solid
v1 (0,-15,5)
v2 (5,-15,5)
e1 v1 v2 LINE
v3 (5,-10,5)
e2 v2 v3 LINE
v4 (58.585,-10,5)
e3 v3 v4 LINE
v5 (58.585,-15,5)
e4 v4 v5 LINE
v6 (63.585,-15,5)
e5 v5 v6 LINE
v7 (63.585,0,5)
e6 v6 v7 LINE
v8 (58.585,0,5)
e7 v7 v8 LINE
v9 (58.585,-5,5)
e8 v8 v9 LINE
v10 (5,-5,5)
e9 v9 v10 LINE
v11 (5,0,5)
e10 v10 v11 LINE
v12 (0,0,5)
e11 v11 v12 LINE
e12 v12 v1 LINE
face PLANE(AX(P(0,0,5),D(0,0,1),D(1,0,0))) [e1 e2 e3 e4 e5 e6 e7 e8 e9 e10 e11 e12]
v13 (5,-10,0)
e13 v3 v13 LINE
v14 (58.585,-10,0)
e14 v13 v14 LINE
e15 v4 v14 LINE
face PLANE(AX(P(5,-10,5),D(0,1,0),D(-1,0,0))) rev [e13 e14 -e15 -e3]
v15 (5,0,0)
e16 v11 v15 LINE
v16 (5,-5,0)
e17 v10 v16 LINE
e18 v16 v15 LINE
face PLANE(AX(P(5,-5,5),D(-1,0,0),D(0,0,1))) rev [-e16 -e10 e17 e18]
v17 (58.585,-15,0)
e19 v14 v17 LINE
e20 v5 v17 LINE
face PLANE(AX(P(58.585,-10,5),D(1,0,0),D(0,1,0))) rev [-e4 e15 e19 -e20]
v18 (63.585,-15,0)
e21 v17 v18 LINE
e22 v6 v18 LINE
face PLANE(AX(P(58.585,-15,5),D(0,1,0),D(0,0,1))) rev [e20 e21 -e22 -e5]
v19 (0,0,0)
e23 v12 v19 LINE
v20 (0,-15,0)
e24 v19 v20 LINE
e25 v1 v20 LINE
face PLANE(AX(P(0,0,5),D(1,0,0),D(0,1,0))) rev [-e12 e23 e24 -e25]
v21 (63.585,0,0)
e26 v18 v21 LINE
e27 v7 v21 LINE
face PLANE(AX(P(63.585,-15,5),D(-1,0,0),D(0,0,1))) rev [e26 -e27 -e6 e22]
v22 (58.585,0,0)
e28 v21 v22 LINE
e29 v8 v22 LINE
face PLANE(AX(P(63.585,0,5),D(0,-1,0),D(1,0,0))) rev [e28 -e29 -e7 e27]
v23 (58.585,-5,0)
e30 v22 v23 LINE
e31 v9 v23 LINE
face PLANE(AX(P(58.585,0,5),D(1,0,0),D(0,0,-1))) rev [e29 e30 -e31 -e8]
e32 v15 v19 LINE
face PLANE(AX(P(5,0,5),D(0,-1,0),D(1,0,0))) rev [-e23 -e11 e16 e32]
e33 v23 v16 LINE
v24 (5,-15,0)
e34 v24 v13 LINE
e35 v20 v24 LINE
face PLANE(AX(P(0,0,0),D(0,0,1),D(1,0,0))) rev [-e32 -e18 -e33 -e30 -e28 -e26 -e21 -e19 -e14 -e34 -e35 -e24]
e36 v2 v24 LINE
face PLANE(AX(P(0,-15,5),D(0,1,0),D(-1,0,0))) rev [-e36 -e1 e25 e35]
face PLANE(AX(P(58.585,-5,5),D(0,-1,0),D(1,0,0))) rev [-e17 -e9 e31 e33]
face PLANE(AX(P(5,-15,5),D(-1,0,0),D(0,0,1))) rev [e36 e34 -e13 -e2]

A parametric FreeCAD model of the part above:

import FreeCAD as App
import Part
import Sketcher
from FreeCAD import Vector

doc = App.newDocument("Part")
body = doc.addObject("PartDesign::Body", "Body")

# Sketch on XY plane
sketch1 = body.newObject("Sketcher::SketchObject", "Sketch")
sketch1.AttachmentSupport = (doc.getObject("XY_Plane"), [""])
sketch1.MapMode = "FlatFace"
sketch1.addGeometry([
    Part.LineSegment(Vector(0, 0, 0), Vector(0, -15, 0)),  # 0
    Part.LineSegment(Vector(0, -15, 0), Vector(5, -15, 0)),  # 1
    Part.LineSegment(Vector(5, -15, 0), Vector(5, -10, 0)),  # 2
    Part.LineSegment(Vector(5, -10, 0), Vector(58.585, -10, 0)),  # 3
    Part.LineSegment(Vector(58.585, -10, 0), Vector(58.585, -15, 0)),  # 4
    Part.LineSegment(Vector(58.585, -15, 0), Vector(63.585, -15, 0)),  # 5
    Part.LineSegment(Vector(63.585, -15, 0), Vector(63.585, 0, 0)),  # 6
    Part.LineSegment(Vector(63.585, 0, 0), Vector(58.585, 0, 0)),  # 7
    Part.LineSegment(Vector(58.585, 0, 0), Vector(58.585, -5, 0)),  # 8
    Part.LineSegment(Vector(58.585, -5, 0), Vector(5, -5, 0)),  # 9
    Part.LineSegment(Vector(5, -5, 0), Vector(5, 0, 0)),  # 10
    Part.LineSegment(Vector(5, 0, 0), Vector(0, 0, 0)),  # 11
], False)
sketch1.addConstraint([
    Sketcher.Constraint("Coincident", 0, 2, 1, 1),
    Sketcher.Constraint("Coincident", 1, 2, 2, 1),
    Sketcher.Constraint("Coincident", 2, 2, 3, 1),
    Sketcher.Constraint("Coincident", 3, 2, 4, 1),
    Sketcher.Constraint("Coincident", 4, 2, 5, 1),
    Sketcher.Constraint("Coincident", 5, 2, 6, 1),
    Sketcher.Constraint("Coincident", 6, 2, 7, 1),
    Sketcher.Constraint("Coincident", 7, 2, 8, 1),
    Sketcher.Constraint("Coincident", 8, 2, 9, 1),
    Sketcher.Constraint("Coincident", 9, 2, 10, 1),
    Sketcher.Constraint("Coincident", 10, 2, 11, 1),
    Sketcher.Constraint("Coincident", 11, 2, 0, 1),
    Sketcher.Constraint("Vertical", 0),
    Sketcher.Constraint("Horizontal", 1),
    Sketcher.Constraint("Vertical", 2),
    Sketcher.Constraint("Horizontal", 3),
    Sketcher.Constraint("Vertical", 4),
    Sketcher.Constraint("Horizontal", 5),
    Sketcher.Constraint("Vertical", 6),
    Sketcher.Constraint("Horizontal", 7),
    Sketcher.Constraint("Vertical", 8),
    Sketcher.Constraint("Horizontal", 9),
    Sketcher.Constraint("Vertical", 10),
    Sketcher.Constraint("Horizontal", 11),
    Sketcher.Constraint("Coincident", 11, 2, -1, 1),
    Sketcher.Constraint("PointOnObject", 6, 2, -1),
    Sketcher.Constraint("Horizontal", 1, 2, 4, 2),
    Sketcher.Constraint("Vertical", 4, 2, 7, 2),
    Sketcher.Constraint("Vertical", 2, 2, 9, 2),
    Sketcher.Constraint("Equal", 1, 5),
    Sketcher.Constraint("Equal", 11, 2),
    Sketcher.Constraint("Equal", 4, 8),
    Sketcher.Constraint("DistanceX", 1, 1, 1, 2, 5.0),
    Sketcher.Constraint("DistanceY", 0, 2, 0, 1, 15.0),
    Sketcher.Constraint("DistanceX", 3, 1, 3, 2, 53.585),
])
pad1 = body.newObject("PartDesign::Pad", "Pad")
pad1.Profile = sketch1
pad1.Length = 5

doc.recompute()
